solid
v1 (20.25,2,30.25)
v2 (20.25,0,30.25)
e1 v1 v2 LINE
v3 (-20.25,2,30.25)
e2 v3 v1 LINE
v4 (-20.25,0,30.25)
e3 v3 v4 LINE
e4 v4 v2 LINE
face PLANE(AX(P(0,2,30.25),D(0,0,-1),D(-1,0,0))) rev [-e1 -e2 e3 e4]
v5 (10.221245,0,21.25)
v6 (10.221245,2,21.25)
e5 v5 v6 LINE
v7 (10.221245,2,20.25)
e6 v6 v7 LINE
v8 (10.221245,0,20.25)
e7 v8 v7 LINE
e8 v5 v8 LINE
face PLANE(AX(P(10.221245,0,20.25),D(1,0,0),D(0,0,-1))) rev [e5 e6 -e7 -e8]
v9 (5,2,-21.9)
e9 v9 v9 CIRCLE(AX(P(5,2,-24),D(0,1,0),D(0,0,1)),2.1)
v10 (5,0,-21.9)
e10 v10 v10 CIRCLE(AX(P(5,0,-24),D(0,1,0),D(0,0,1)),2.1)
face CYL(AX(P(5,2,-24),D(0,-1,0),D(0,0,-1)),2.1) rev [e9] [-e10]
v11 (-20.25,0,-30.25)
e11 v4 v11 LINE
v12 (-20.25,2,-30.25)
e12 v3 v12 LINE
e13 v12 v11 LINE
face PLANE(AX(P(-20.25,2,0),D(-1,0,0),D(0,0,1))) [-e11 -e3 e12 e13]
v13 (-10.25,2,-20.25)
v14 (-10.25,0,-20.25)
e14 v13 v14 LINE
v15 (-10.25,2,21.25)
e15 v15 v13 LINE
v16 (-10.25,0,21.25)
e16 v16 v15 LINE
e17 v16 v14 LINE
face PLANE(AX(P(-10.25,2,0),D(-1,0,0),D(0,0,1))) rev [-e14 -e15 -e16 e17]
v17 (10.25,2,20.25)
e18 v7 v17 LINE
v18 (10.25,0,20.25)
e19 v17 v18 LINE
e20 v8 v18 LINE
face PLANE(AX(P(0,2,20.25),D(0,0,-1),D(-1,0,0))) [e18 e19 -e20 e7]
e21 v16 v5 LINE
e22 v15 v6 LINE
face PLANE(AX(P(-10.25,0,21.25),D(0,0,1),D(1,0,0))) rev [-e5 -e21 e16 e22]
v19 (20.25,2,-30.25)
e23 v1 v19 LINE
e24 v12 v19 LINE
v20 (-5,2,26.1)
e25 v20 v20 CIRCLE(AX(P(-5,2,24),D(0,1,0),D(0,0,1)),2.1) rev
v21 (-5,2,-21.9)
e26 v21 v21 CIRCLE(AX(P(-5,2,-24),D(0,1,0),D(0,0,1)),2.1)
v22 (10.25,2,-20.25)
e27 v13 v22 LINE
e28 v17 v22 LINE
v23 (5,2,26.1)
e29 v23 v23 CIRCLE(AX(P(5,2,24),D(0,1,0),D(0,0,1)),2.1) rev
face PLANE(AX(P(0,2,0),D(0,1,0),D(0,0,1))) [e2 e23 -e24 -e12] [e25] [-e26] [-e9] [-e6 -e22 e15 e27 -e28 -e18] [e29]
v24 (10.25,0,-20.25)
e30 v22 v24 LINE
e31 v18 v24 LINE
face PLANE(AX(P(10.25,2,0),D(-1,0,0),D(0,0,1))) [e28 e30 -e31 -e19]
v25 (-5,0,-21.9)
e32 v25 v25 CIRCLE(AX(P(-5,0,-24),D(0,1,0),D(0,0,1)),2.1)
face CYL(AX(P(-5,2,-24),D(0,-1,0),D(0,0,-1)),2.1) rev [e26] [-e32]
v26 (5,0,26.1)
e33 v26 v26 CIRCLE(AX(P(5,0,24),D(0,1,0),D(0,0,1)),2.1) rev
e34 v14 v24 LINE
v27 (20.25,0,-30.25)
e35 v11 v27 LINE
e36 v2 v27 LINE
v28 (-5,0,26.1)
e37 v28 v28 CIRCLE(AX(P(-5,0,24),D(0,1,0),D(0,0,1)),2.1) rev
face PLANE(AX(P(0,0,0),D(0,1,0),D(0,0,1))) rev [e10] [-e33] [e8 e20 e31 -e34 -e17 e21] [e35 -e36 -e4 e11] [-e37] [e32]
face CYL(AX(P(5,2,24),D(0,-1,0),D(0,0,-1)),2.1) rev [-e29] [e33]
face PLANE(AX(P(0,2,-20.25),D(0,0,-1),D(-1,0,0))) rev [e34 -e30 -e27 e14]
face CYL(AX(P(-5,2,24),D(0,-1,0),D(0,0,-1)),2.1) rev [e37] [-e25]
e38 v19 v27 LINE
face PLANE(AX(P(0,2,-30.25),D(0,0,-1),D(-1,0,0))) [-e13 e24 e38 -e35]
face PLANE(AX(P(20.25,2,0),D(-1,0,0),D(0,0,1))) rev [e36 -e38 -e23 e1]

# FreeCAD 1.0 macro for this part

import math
import FreeCAD as App
import Part
import Sketcher

V = App.Vector
Q = App.Units.Quantity


def add_polygon(sketch, points):
    """Adds a closed chain of lines whose ends are joined by coincident constraints."""
    first, n = sketch.GeometryCount, len(points)
    for a, b in zip(points, points[1:] + points[:1]):
        sketch.addGeometry(Part.LineSegment(App.Vector(*a, 0), App.Vector(*b, 0)), False)
    for i in range(n):
        sketch.addConstraint(Sketcher.Constraint("Coincident", first + i, 2, first + (i + 1) % n, 1))

doc = App.newDocument("Part")
body = doc.addObject("PartDesign::Body", "Body")

# Sketch on XZ plane
sketch1 = body.newObject("Sketcher::SketchObject", "Sketch")
sketch1.AttachmentSupport = (doc.getObject("XZ_Plane"), [""])
sketch1.MapMode = "FlatFace"
add_polygon(sketch1, [(-20.2, -30.2), (-20.2, 30.2), (20.2, 30.2), (20.2, -30.2)])  # lines 0-3
sketch1.addGeometry(Part.Circle(V(-5, 24, 0), V(0, 0, 1), 2.1), False)  # 4
sketch1.addGeometry(Part.Circle(V(5, 24, 0), V(0, 0, 1), 2.1), False)  # 5
add_polygon(sketch1, [(10.2, -20.2), (10.2, 20.2), (-10.2, 20.2), (-10.2, -20.2)])  # lines 6-9
sketch1.addGeometry(Part.ArcOfCircle(Part.Circle(V(5, -24, 0), V(0, 0, 1), 2.1), math.radians(0), math.radians(90)), False)  # 10
sketch1.addGeometry(Part.ArcOfCircle(Part.Circle(V(5, -24, 0), V(0, 0, 1), 2.1), math.radians(90), math.radians(180)), False)  # 11
sketch1.addGeometry(Part.ArcOfCircle(Part.Circle(V(5, -24, 0), V(0, 0, 1), 2.1), math.radians(180), math.radians(360)), False)  # 12
sketch1.addGeometry(Part.ArcOfCircle(Part.Circle(V(-5, -24, 0), V(0, 0, 1), 2.1), math.radians(90), math.radians(360)), False)  # 13
sketch1.addGeometry(Part.ArcOfCircle(Part.Circle(V(-5, -24, 0), V(0, 0, 1), 2.1), math.radians(0), math.radians(90)), False)  # 14
sketch1.addConstraint([
    Sketcher.Constraint("Tangent", 10, 2, 11, 1),
    Sketcher.Constraint("Tangent", 11, 2, 12, 1),
    Sketcher.Constraint("Tangent", 12, 2, 10, 1),
    Sketcher.Constraint("Tangent", 13, 1, 14, 2),
    Sketcher.Constraint("Coincident", 14, 1, 13, 2),
    Sketcher.Constraint("Vertical", 0),
    Sketcher.Constraint("Horizontal", 1),
    Sketcher.Constraint("Vertical", 2),
    Sketcher.Constraint("Horizontal", 3),
    Sketcher.Constraint("Vertical", 6),
    Sketcher.Constraint("Horizontal", 7),
    Sketcher.Constraint("Vertical", 8),
    Sketcher.Constraint("Horizontal", 9),
    Sketcher.Constraint("Equal", 4, 5),
    Sketcher.Constraint("Equal", 5, 10),
    Sketcher.Constraint("Equal", 12, 13),
    Sketcher.Constraint("Symmetric", 4, 3, 10, 3, -1, 1),
    Sketcher.Constraint("Symmetric", 5, 3, 13, 3, -1, 1),
    Sketcher.Constraint("Symmetric", 0, 2, 2, 2, -1, 1),
    Sketcher.Constraint("Symmetric", 6, 2, 8, 2, -1, 1),
    Sketcher.Constraint("Symmetric", 4, 3, 5, 3, -2),
    Sketcher.Constraint("Horizontal", 14, 3, 11, 2),
    Sketcher.Constraint("Horizontal", 11, 2, 12, 2),
    Sketcher.Constraint("Horizontal", 12, 2, 14, 1),
    Sketcher.Constraint("Vertical", 12, 3, 10, 2),
    Sketcher.Constraint("Vertical", 14, 3, 13, 1),
    Sketcher.Constraint("Equal", 3, 6),
    Sketcher.Constraint("Diameter", 4, Q("4.2 mm")),
    Sketcher.Constraint("DistanceX", 1, 1, 1, 2, Q("40.5 mm")),
    Sketcher.Constraint("DistanceX", 7, 2, 7, 1, Q("20.5 mm")),
    Sketcher.Constraint("DistanceY", 0, 1, 0, 2, Q("60.5 mm")),
    Sketcher.Constraint("DistanceX", 4, 3, -1, 1, Q("5 mm")),
    Sketcher.Constraint("DistanceY", -1, 1, 4, 3, Q("24 mm")),
])
pad1 = body.newObject("PartDesign::Pad", "Pad")
pad1.Profile = sketch1
pad1.Length = 2
pad1.Reversed = True

# Sketch on XZ plane
sketch2 = body.newObject("Sketcher::SketchObject", "Sketch001")
sketch2.AttachmentSupport = (doc.getObject("XZ_Plane"), [""])
sketch2.MapMode = "FlatFace"
sketch2.AttachmentOffset = App.Placement(V(0, 0, -2), App.Rotation())
add_polygon(sketch2, [(-10.2, 20.2), (-10.2, 21.2), (10.2, 21.2), (10.2, 20.2)])  # lines 0-3
sketch2.addConstraint([
    Sketcher.Constraint("Vertical", 0),
    Sketcher.Constraint("Horizontal", 1),
    Sketcher.Constraint("Vertical", 2),
    Sketcher.Constraint("Horizontal", 3),
    Sketcher.Constraint("DistanceY", 0, 1, 0, 2, Q("1 mm")),
    Sketcher.Constraint("DistanceX", 0, 2, -1, 1, Q("10.25 mm")),
    Sketcher.Constraint("DistanceY", -1, 1, 0, 2, Q("21.25 mm")),
    Sketcher.Constraint("DistanceX", 1, 1, 1, 2, Q("20.471245 mm")),
])
pocket1 = body.newObject("PartDesign::Pocket", "Pocket")
pocket1.Profile = sketch2
pocket1.Length = 2
pocket1.Reversed = True

doc.recompute()
